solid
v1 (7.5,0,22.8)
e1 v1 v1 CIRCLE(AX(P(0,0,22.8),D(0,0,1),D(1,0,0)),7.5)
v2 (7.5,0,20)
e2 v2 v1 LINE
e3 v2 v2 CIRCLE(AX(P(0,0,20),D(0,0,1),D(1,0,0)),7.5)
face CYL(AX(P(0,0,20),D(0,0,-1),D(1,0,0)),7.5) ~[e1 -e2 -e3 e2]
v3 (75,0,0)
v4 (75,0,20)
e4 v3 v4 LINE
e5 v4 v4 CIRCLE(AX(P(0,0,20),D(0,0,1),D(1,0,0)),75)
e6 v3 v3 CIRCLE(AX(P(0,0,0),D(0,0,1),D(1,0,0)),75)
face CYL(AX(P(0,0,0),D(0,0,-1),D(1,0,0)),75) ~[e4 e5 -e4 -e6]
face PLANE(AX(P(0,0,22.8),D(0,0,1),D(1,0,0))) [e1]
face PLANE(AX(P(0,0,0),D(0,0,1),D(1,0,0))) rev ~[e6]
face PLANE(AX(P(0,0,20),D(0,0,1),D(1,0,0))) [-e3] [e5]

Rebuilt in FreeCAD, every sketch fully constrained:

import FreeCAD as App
import Part
import Sketcher
from FreeCAD import Vector

doc = App.newDocument("Part")
body = doc.addObject("PartDesign::Body", "Body")

# Sketch on XY plane
sketch1 = body.newObject("Sketcher::SketchObject", "Sketch")
sketch1.AttachmentSupport = (doc.getObject("XY_Plane"), [""])
sketch1.MapMode = "FlatFace"
sketch1.addGeometry(Part.Circle(Vector(0, 0, 0), Vector(0, 0, 1), 75), False)
sketch1.addConstraint(Sketcher.Constraint("Coincident", 0, 3, -1, 1))
sketch1.addConstraint(Sketcher.Constraint("Diameter", 0, 150.0))
pad1 = body.newObject("PartDesign::Pad", "Pad")
pad1.Profile = sketch1
pad1.Length = 20

# Sketch on XY plane
sketch2 = body.newObject("Sketcher::SketchObject", "Sketch001")
sketch2.AttachmentSupport = (doc.getObject("XY_Plane"), [""])
sketch2.MapMode = "FlatFace"
sketch2.AttachmentOffset = App.Placement(Vector(0, 0, 20), App.Rotation())
sketch2.addGeometry(Part.Circle(Vector(0, 0, 0), Vector(0, 0, 1), 8), False)
sketch2.addConstraint(Sketcher.Constraint("Coincident", 0, 3, -1, 1))
sketch2.addConstraint(Sketcher.Constraint("Diameter", 0, 15.0))
pad2 = body.newObject("PartDesign::Pad", "Pad001")
pad2.Profile = sketch2
pad2.Length = 25

# Sketch on XY plane
sketch3 = body.newObject("Sketcher::SketchObject", "Sketch002")
sketch3.AttachmentSupport = (doc.getObject("XY_Plane"), [""])
sketch3.MapMode = "FlatFace"
sketch3.AttachmentOffset = App.Placement(Vector(0, 0, 45), App.Rotation())
sketch3.addGeometry(Part.Circle(Vector(0, 0, 0), Vector(0, 0, 1), 8), False)
sketch3.addConstraint(Sketcher.Constraint("Coincident", 0, 3, -1, 1))
sketch3.addConstraint(Sketcher.Constraint("Diameter", 0, 15.0))
pocket1 = body.newObject("PartDesign::Pocket", "Pocket")
pocket1.Profile = sketch3
pocket1.Length = 22.2

doc.recompute()
